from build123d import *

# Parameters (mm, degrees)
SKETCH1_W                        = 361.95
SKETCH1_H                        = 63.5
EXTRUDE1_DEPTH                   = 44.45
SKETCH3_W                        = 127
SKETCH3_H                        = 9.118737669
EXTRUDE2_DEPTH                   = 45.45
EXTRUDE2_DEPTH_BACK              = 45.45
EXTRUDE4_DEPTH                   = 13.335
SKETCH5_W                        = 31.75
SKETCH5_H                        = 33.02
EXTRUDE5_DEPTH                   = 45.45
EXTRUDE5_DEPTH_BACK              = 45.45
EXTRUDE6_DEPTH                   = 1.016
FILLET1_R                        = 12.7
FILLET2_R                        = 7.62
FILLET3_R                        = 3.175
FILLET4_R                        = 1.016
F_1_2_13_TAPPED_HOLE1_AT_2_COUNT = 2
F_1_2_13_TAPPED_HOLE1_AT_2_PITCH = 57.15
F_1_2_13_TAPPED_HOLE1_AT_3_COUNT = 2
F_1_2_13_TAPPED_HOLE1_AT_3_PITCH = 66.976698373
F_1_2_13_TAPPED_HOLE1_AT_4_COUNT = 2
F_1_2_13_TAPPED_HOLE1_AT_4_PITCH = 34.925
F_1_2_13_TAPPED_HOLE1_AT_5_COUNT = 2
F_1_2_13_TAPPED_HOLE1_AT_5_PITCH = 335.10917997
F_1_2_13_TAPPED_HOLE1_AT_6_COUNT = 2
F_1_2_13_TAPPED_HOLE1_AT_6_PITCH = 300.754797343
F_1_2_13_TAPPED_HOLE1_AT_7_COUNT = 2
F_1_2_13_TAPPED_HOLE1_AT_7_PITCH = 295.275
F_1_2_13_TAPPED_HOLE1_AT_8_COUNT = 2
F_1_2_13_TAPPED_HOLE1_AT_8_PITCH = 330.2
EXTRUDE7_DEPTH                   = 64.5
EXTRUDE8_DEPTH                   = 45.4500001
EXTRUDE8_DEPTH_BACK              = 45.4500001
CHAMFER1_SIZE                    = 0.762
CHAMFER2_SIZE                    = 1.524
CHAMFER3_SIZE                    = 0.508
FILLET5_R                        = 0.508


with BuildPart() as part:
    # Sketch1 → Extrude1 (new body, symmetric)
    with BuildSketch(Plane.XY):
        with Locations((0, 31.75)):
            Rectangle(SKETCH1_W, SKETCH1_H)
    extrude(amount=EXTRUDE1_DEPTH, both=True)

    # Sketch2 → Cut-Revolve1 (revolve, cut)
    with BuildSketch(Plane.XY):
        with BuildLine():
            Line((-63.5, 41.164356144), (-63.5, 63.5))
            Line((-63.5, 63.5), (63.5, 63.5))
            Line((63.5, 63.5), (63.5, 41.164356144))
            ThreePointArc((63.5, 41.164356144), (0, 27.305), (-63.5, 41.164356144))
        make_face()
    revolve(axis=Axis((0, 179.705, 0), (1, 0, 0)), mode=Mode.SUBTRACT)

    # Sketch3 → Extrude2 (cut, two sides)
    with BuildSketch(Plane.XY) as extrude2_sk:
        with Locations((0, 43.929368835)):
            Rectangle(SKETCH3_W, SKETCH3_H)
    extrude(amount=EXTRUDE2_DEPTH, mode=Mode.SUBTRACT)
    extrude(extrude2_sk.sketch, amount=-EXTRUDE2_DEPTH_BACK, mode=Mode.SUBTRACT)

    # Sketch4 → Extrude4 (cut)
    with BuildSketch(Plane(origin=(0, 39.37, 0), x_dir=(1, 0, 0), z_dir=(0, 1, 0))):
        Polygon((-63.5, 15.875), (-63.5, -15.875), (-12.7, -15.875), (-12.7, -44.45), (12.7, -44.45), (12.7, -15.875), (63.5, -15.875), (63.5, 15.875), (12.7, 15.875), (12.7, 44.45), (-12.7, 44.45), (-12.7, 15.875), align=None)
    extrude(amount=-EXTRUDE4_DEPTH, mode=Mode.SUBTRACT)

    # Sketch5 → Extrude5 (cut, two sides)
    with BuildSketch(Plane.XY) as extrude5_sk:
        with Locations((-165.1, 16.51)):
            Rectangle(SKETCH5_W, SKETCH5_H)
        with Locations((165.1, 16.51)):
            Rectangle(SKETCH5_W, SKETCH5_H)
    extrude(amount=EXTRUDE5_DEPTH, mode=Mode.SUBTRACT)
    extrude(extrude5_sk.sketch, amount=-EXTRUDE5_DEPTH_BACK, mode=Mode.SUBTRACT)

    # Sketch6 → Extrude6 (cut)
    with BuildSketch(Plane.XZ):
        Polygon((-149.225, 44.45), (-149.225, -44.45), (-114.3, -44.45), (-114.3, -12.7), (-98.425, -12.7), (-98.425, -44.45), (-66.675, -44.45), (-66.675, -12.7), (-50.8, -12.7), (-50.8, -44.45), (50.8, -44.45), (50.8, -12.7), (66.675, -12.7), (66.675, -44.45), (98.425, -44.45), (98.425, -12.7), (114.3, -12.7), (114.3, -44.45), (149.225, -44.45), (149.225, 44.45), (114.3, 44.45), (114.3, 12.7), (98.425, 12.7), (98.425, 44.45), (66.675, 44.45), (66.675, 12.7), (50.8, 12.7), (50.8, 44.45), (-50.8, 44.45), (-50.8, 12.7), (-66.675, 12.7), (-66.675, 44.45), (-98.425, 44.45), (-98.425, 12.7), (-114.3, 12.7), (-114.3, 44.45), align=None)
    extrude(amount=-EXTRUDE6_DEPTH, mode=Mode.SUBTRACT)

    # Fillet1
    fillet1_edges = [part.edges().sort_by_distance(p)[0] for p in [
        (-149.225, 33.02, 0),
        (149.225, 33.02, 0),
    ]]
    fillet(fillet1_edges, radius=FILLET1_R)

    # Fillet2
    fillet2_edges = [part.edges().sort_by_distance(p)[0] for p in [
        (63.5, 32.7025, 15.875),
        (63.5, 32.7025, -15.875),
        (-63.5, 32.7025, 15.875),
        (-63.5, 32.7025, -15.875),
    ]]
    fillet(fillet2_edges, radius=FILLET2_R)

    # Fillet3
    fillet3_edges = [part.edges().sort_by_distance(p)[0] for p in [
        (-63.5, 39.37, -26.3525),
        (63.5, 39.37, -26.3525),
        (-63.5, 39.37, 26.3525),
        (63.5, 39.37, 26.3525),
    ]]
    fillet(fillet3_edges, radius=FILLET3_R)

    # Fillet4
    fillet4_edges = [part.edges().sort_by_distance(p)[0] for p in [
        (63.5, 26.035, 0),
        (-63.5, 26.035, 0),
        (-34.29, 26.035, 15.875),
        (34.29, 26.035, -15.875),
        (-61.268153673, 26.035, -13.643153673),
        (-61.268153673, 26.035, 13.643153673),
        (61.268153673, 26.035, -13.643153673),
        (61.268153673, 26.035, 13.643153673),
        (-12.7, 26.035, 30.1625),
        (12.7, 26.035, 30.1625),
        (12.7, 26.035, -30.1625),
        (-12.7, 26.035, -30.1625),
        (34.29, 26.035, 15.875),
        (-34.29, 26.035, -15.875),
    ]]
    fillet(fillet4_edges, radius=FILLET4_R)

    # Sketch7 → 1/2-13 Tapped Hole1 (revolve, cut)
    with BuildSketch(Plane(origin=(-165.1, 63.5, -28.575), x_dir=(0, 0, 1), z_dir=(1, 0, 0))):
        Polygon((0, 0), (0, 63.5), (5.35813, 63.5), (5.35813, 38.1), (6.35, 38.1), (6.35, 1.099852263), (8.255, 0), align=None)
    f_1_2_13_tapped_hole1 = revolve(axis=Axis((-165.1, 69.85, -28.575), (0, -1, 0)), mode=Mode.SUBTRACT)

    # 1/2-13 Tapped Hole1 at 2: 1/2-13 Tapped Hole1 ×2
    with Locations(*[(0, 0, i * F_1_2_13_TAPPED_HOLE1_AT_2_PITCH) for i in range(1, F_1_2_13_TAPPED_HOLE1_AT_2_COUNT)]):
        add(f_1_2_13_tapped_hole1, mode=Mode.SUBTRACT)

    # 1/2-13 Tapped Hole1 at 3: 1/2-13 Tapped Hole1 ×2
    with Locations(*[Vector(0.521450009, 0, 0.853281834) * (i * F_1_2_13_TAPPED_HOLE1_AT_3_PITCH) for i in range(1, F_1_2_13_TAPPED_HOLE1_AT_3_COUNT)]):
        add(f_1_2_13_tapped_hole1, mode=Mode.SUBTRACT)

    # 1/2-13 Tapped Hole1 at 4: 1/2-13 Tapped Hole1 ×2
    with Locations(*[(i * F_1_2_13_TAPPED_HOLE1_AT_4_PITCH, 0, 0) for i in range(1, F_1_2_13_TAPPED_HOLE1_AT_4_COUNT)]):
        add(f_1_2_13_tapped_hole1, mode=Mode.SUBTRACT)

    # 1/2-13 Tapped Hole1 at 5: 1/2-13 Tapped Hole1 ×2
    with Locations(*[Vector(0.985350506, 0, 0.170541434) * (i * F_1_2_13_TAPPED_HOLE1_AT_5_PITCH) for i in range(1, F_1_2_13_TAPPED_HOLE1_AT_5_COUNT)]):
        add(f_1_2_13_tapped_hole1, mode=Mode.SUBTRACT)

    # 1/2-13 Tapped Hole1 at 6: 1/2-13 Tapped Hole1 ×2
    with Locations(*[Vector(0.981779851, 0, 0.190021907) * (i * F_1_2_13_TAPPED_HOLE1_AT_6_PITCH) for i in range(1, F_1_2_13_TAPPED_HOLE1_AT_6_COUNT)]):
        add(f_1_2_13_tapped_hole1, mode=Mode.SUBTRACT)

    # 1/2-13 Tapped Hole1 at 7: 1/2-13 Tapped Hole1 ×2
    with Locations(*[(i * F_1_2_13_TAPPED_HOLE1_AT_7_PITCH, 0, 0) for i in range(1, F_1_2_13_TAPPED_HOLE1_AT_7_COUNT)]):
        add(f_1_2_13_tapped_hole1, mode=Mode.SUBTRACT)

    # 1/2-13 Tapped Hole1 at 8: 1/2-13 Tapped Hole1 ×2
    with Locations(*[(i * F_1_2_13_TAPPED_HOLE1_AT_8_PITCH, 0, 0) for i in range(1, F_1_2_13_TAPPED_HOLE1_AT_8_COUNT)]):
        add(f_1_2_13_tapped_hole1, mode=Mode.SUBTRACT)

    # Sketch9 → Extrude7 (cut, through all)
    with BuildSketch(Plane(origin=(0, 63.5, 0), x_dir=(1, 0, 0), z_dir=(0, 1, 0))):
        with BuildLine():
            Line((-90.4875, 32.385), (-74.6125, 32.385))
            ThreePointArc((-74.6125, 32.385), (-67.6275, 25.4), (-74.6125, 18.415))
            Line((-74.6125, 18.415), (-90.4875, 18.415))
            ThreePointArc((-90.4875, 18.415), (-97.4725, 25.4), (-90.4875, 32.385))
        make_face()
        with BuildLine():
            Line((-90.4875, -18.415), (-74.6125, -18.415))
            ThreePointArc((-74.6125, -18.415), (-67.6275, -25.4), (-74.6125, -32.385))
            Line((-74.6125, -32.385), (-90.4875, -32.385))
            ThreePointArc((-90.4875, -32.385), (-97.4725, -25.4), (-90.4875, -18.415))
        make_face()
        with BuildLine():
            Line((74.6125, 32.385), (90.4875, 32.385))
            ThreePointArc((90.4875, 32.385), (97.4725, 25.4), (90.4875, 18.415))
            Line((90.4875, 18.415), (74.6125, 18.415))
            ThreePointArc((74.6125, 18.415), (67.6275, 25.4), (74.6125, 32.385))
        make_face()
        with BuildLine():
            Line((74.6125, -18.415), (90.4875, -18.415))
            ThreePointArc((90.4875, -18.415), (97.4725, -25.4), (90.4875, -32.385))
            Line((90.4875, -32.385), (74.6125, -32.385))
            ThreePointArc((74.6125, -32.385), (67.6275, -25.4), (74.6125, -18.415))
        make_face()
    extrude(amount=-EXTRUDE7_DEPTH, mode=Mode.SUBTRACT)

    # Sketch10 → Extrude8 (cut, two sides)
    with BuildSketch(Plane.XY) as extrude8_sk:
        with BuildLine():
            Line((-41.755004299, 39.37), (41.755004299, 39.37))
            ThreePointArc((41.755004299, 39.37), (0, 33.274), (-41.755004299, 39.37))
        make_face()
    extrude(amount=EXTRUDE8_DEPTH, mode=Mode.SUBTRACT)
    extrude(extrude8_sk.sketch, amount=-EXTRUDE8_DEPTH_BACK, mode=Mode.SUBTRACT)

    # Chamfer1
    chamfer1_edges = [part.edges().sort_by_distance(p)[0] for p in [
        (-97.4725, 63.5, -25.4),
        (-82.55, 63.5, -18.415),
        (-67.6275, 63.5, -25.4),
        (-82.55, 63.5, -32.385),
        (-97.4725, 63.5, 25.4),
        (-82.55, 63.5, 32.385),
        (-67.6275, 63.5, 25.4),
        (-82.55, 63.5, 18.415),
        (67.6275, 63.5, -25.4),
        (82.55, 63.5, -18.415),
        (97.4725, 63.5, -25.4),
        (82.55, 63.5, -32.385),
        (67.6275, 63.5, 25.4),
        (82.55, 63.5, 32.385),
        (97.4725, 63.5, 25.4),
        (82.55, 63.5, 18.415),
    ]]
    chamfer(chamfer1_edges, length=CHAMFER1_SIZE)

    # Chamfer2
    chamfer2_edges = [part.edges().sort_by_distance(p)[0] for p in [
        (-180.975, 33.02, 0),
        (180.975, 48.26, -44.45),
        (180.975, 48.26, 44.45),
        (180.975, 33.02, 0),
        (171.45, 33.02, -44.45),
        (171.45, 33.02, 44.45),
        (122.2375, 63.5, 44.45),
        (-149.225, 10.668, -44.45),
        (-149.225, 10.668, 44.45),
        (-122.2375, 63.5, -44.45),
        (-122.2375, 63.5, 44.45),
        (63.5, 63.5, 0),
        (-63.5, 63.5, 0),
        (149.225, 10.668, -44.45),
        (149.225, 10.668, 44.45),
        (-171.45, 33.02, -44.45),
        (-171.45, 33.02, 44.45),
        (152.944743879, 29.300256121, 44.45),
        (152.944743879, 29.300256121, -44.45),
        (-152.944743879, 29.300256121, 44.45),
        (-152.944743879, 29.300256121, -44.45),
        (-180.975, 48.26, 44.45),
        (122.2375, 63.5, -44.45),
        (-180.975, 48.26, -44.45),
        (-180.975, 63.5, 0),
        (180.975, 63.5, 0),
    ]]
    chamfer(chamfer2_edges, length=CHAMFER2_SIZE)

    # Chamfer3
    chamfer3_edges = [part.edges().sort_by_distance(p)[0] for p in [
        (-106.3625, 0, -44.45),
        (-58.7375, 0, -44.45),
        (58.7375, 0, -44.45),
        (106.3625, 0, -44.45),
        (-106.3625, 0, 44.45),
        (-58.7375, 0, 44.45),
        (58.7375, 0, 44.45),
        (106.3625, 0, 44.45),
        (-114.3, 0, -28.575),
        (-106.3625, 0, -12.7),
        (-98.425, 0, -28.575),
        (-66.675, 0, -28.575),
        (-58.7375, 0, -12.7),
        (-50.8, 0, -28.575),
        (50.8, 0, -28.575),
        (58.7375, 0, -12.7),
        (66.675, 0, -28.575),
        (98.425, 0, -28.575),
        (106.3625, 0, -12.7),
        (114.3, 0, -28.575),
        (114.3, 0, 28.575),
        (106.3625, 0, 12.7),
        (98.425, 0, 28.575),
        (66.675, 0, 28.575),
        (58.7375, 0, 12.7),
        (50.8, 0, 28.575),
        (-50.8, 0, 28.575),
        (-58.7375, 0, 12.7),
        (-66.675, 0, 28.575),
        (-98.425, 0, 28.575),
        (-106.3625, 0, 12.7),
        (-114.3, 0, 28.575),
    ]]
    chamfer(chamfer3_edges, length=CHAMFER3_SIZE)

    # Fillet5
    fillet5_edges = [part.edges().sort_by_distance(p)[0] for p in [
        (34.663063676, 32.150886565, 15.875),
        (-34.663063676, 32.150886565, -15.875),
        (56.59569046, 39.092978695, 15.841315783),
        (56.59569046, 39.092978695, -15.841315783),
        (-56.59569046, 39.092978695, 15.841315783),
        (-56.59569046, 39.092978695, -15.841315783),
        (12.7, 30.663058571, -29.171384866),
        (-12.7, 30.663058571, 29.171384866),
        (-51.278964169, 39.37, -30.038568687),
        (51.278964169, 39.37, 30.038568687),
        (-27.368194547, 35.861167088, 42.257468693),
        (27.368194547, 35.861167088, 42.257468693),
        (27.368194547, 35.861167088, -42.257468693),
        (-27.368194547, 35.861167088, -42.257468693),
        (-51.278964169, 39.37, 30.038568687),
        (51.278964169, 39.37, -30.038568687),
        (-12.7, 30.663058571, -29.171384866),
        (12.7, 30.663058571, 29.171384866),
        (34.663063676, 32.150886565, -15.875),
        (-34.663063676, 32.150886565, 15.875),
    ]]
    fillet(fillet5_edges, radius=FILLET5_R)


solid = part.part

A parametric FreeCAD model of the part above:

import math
import FreeCAD as App
import Part
import Sketcher
from FreeCAD import Vector
Q = App.Units.Quantity


def edges_at(feature, points):
    """Names of the edges that pass closest to the given points."""
    edges = feature.Shape.Edges
    near = lambda p: min(range(len(edges)), key=lambda i: edges[i].distToShape(Part.Vertex(*p))[0])
    return sorted({f"Edge{near(p) + 1}" for p in points})


def add_polygon(sketch, points):
    """Adds a closed chain of lines whose ends are joined by coincident constraints."""
    first, n = sketch.GeometryCount, len(points)
    for a, b in zip(points, points[1:] + points[:1]):
        sketch.addGeometry(Part.LineSegment(App.Vector(*a, 0), App.Vector(*b, 0)), False)
    for i in range(n):
        sketch.addConstraint(Sketcher.Constraint("Coincident", first + i, 2, first + (i + 1) % n, 1))

doc = App.newDocument("Part")
body = doc.addObject("PartDesign::Body", "Body")

# Sketch on XY plane
sketch1 = body.newObject("Sketcher::SketchObject", "Sketch")
sketch1.AttachmentSupport = (doc.getObject("XY_Plane"), [""])
sketch1.MapMode = "FlatFace"
add_polygon(sketch1, [(-181, 64), (-181, 0), (181, 0), (181, 64)])  # lines 0-3
sketch1.addConstraint([
    Sketcher.Constraint("Vertical", 0),
    Sketcher.Constraint("Horizontal", 1),
    Sketcher.Constraint("Vertical", 2),
    Sketcher.Constraint("Horizontal", 3),
    Sketcher.Constraint("Symmetric", 0, 2, 1, 2, -1, 1),
    Sketcher.Constraint("DistanceY", 0, 2, 0, 1, Q("2.5 in")),
    Sketcher.Constraint("DistanceX", 1, 1, 1, 2, Q("14.25 in")),
])
pad1 = body.newObject("PartDesign::Pad", "Pad")
pad1.Profile = sketch1
pad1.Length = Q("3.5 in")
pad1.Midplane = True

# Sketch on XY plane
sketch2 = body.newObject("Sketcher::SketchObject", "Sketch001")
sketch2.AttachmentSupport = (doc.getObject("XY_Plane"), [""])
sketch2.MapMode = "FlatFace"
sketch2.addGeometry([
    Part.LineSegment(Vector(-64, 64, 0), Vector(-64, 41, 0)),
    Part.ArcOfCircle(Part.Circle(Vector(0, 180, 0), Vector(0, 0, 1), 152), math.radians(-115), math.radians(-65)),
    Part.LineSegment(Vector(64, 41, 0), Vector(64, 64, 0)),
    Part.LineSegment(Vector(64, 64, 0), Vector(-64, 64, 0)),
], False)
sketch2.addGeometry(Part.LineSegment(Vector(-64, 180, 0), Vector(64, 180, 0)), True)  # axis
sketch2.addConstraint([
    Sketcher.Constraint("Coincident", 0, 2, 1, 1),
    Sketcher.Constraint("Coincident", 1, 2, 2, 1),
    Sketcher.Constraint("Coincident", 2, 2, 3, 1),
    Sketcher.Constraint("Coincident", 3, 2, 0, 1),
    Sketcher.Constraint("Vertical", 0),
    Sketcher.Constraint("Vertical", 2),
    Sketcher.Constraint("Horizontal", 3),
    Sketcher.Constraint("Horizontal", 4),
    Sketcher.Constraint("Symmetric", 0, 2, 1, 2, -2),
    Sketcher.Constraint("Horizontal", 1, 3, 4, 1),
    Sketcher.Constraint("Vertical", 3, 2, 4, 1),
    Sketcher.Constraint("Vertical", 2, 2, 4, 2),
    Sketcher.Constraint("Radius", 1, Q("6 in")),
    Sketcher.Constraint("DistanceX", 3, 2, 3, 1, Q("5 in")),
    Sketcher.Constraint("DistanceY", -1, 1, 2, 2, Q("2.5 in")),
    Sketcher.Constraint("DistanceY", -1, 1, 1, 3, Q("7.075 in")),
])
groove = body.newObject("PartDesign::Groove", "Groove")
groove.Profile = sketch2
groove.ReferenceAxis = (sketch2, ["Axis0"])
groove.Angle = 360

# Sketch on XY plane
sketch3 = body.newObject("Sketcher::SketchObject", "Sketch002")
sketch3.AttachmentSupport = (doc.getObject("XY_Plane"), [""])
sketch3.MapMode = "FlatFace"
add_polygon(sketch3, [(-64, 48), (-64, 39), (64, 39), (64, 48)])  # lines 0-3
sketch3.addConstraint([
    Sketcher.Constraint("Vertical", 0),
    Sketcher.Constraint("Horizontal", 1),
    Sketcher.Constraint("Vertical", 2),
    Sketcher.Constraint("Horizontal", 3),
    Sketcher.Constraint("DistanceX", 1, 1, 1, 2, Q("5 in")),
    Sketcher.Constraint("DistanceX", 0, 2, -1, 1, Q("2.5 in")),
    Sketcher.Constraint("DistanceY", -1, 1, 0, 2, Q("1.55 in")),
    Sketcher.Constraint("DistanceY", 0, 2, 0, 1, Q("9.118738 mm")),
])
pocket1 = body.newObject("PartDesign::Pocket", "Pocket")
pocket1.Profile = sketch3
pocket1.Type = "ThroughAll"
pocket1.Midplane = True

# Sketch on XZ plane
sketch4 = body.newObject("Sketcher::SketchObject", "Sketch003")
sketch4.AttachmentSupport = (doc.getObject("XZ_Plane"), [""])
sketch4.MapMode = "FlatFace"
sketch4.AttachmentOffset = App.Placement(Vector(0, 0, -1.55 * 25.4), App.Rotation())
add_polygon(sketch4, [(-64, -16), (-64, 16), (-13, 16), (-13, 44), (13, 44), (13, 16), (64, 16), (64, -16), (13, -16), (13, -44), (-13, -44), (-13, -16)])  # lines 0-11
sketch4.addConstraint([
    Sketcher.Constraint("Vertical", 0),
    Sketcher.Constraint("Horizontal", 1),
    Sketcher.Constraint("Vertical", 2),
    Sketcher.Constraint("Horizontal", 3),
    Sketcher.Constraint("Vertical", 4),
    Sketcher.Constraint("Horizontal", 5),
    Sketcher.Constraint("Vertical", 6),
    Sketcher.Constraint("Horizontal", 7),
    Sketcher.Constraint("Vertical", 8),
    Sketcher.Constraint("Horizontal", 9),
    Sketcher.Constraint("Vertical", 10),
    Sketcher.Constraint("Horizontal", 11),
    Sketcher.Constraint("Symmetric", 0, 2, 6, 2, -1, 1),
    Sketcher.Constraint("Symmetric", 2, 2, 8, 2, -1, 1),
    Sketcher.Constraint("Symmetric", 4, 2, 10, 2, -1, 1),
    Sketcher.Constraint("Symmetric", 1, 2, 4, 2, -2),
    Sketcher.Constraint("DistanceX", 1, 1, 1, 2, Q("2 in")),
    Sketcher.Constraint("DistanceX", 3, 1, 3, 2, Q("1 in")),
    Sketcher.Constraint("DistanceY", 0, 1, 0, 2, Q("1.25 in")),
    Sketcher.Constraint("DistanceY", 2, 1, 2, 2, Q("1.125 in")),
])
pocket2 = body.newObject("PartDesign::Pocket", "Pocket001")
pocket2.Profile = sketch4
pocket2.Length = Q("0.525 in")
pocket2.Reversed = True

# Sketch on XY plane
sketch5 = body.newObject("Sketcher::SketchObject", "Sketch004")
sketch5.AttachmentSupport = (doc.getObject("XY_Plane"), [""])
sketch5.MapMode = "FlatFace"
add_polygon(sketch5, [(-181, 33), (-181, 0), (-149, 0), (-149, 33)])  # lines 0-3
add_polygon(sketch5, [(149, 33), (149, 0), (181, 0), (181, 33)])  # lines 4-7
sketch5.addConstraint([
    Sketcher.Constraint("Vertical", 0),
    Sketcher.Constraint("Horizontal", 1),
    Sketcher.Constraint("Vertical", 2),
    Sketcher.Constraint("Horizontal", 3),
    Sketcher.Constraint("Vertical", 4),
    Sketcher.Constraint("Horizontal", 5),
    Sketcher.Constraint("Vertical", 6),
    Sketcher.Constraint("Horizontal", 7),
    Sketcher.Constraint("Symmetric", 1, 2, 4, 2, -1, 1),
    Sketcher.Constraint("Symmetric", 0, 2, 5, 2, -2),
    Sketcher.Constraint("Horizontal", 3, 2, 6, 2),
    Sketcher.Constraint("DistanceY", 0, 2, 0, 1, Q("1.3 in")),
    Sketcher.Constraint("DistanceX", 0, 2, 4, 2, Q("13 in")),
    Sketcher.Constraint("DistanceX", 1, 1, 1, 2, Q("1.25 in")),
])
pocket3 = body.newObject("PartDesign::Pocket", "Pocket002")
pocket3.Profile = sketch5
pocket3.Type = "ThroughAll"
pocket3.Midplane = True

# Sketch on XZ plane
sketch6 = body.newObject("Sketcher::SketchObject", "Sketch005")
sketch6.AttachmentSupport = (doc.getObject("XZ_Plane"), [""])
sketch6.MapMode = "FlatFace"
add_polygon(sketch6, [(-149, 44), (-149, -44), (-114, -44), (-114, -13), (-98, -13), (-98, -44), (-67, -44), (-67, -13), (-51, -13), (-51, -44), (51, -44), (51, -13), (67, -13), (67, -44), (98, -44), (98, -13), (114, -13), (114, -44), (149, -44), (149, 44), (114, 44), (114, 13), (98, 13), (98, 44), (67, 44), (67, 13), (51, 13), (51, 44), (-51, 44), (-51, 13), (-67, 13), (-67, 44), (-98, 44), (-98, 13), (-114, 13), (-114, 44)])  # lines 0-35
sketch6.addConstraint([
    Sketcher.Constraint("Vertical", 0),
    Sketcher.Constraint("Horizontal", 1),
    Sketcher.Constraint("Vertical", 2),
    Sketcher.Constraint("Horizontal", 3),
    Sketcher.Constraint("Vertical", 4),
    Sketcher.Constraint("Horizontal", 5),
    Sketcher.Constraint("Vertical", 6),
    Sketcher.Constraint("Horizontal", 7),
    Sketcher.Constraint("Vertical", 8),
    Sketcher.Constraint("Horizontal", 9),
    Sketcher.Constraint("Vertical", 10),
    Sketcher.Constraint("Horizontal", 11),
    Sketcher.Constraint("Vertical", 12),
    Sketcher.Constraint("Horizontal", 13),
    Sketcher.Constraint("Vertical", 14),
    Sketcher.Constraint("Horizontal", 15),
    Sketcher.Constraint("Vertical", 16),
    Sketcher.Constraint("Horizontal", 17),
    Sketcher.Constraint("Vertical", 18),
    Sketcher.Constraint("Horizontal", 19),
    Sketcher.Constraint("Vertical", 20),
    Sketcher.Constraint("Horizontal", 21),
    Sketcher.Constraint("Vertical", 22),
    Sketcher.Constraint("Horizontal", 23),
    Sketcher.Constraint("Vertical", 24),
    Sketcher.Constraint("Horizontal", 25),
    Sketcher.Constraint("Vertical", 26),
    Sketcher.Constraint("Horizontal", 27),
    Sketcher.Constraint("Vertical", 28),
    Sketcher.Constraint("Horizontal", 29),
    Sketcher.Constraint("Vertical", 30),
    Sketcher.Constraint("Horizontal", 31),
    Sketcher.Constraint("Vertical", 32),
    Sketcher.Constraint("Horizontal", 33),
    Sketcher.Constraint("Vertical", 34),
    Sketcher.Constraint("Horizontal", 35),
    Sketcher.Constraint("Symmetric", 0, 2, 18, 2, -1, 1),
    Sketcher.Constraint("Symmetric", 2, 2, 20, 2, -1, 1),
    Sketcher.Constraint("Symmetric", 4, 2, 22, 2, -1, 1),
    Sketcher.Constraint("Symmetric", 6, 2, 24, 2, -1, 1),
    Sketcher.Constraint("Symmetric", 8, 2, 26, 2, -1, 1),
    Sketcher.Constraint("Symmetric", 10, 2, 28, 2, -1, 1),
    Sketcher.Constraint("Symmetric", 12, 2, 30, 2, -1, 1),
    Sketcher.Constraint("Symmetric", 14, 2, 32, 2, -1, 1),
    Sketcher.Constraint("Symmetric", 16, 2, 34, 2, -1, 1),
    Sketcher.Constraint("Symmetric", 7, 2, 10, 2, -2),
    Sketcher.Constraint("Symmetric", 5, 2, 12, 2, -2),
    Sketcher.Constraint("Symmetric", 3, 2, 14, 2, -2),
    Sketcher.Constraint("Symmetric", 1, 2, 16, 2, -2),
    Sketcher.Constraint("Horizontal", 1, 2, 4, 2),
    Sketcher.Constraint("Horizontal", 3, 2, 6, 2),
    Sketcher.Constraint("Horizontal", 5, 2, 8, 2),
    Sketcher.Constraint("Equal", 3, 7),
    Sketcher.Constraint("Equal", 31, 2),
    Sketcher.Constraint("DistanceX", 9, 1, 9, 2, Q("4 in")),
    Sketcher.Constraint("DistanceY", 0, 2, 0, 1, Q("3.5 in")),
    Sketcher.Constraint("DistanceX", 0, 2, 3, 2, Q("2 in")),
    Sketcher.Constraint("DistanceY", 15, 2, 20, 2, Q("1 in")),
    Sketcher.Constraint("DistanceX", 1, 2, -1, 1, Q("4.5 in")),
])
pocket4 = body.newObject("PartDesign::Pocket", "Pocket003")
pocket4.Profile = sketch6
pocket4.Length = Q("0.04 in")
doc.recompute()

fillet = body.newObject("PartDesign::Fillet", "Fillet")
fillet.Base = (pocket4, edges_at(pocket4, [(-149.225, 33.02, 0), (149.225, 33.02, 0)]))
fillet.Radius = Q("0.5 in")
doc.recompute()

fillet2 = body.newObject("PartDesign::Fillet", "Fillet001")
fillet2.Base = (fillet, edges_at(fillet, [
    (63.5, 32.703, 15.875),
    (63.5, 32.703, -15.875),
    (-63.5, 32.703, 15.875),
    (-63.5, 32.703, -15.875),
]))
fillet2.Radius = Q("0.3 in")
doc.recompute()

fillet3 = body.newObject("PartDesign::Fillet", "Fillet002")
fillet3.Base = (fillet2, edges_at(fillet2, [
    (-63.5, 39.37, -26.352),
    (63.5, 39.37, -26.352),
    (-63.5, 39.37, 26.352),
    (63.5, 39.37, 26.352),
]))
fillet3.Radius = Q("0.125 in")
doc.recompute()

fillet4 = body.newObject("PartDesign::Fillet", "Fillet003")
fillet4.Base = (fillet3, edges_at(fillet3, [
    (63.5, 26.035, 0),
    (-63.5, 26.035, 0),
    (-34.29, 26.035, 15.875),
    (34.29, 26.035, -15.875),
    (-61.268, 26.035, -13.643),
    (-61.268, 26.035, 13.643),
    (61.268, 26.035, -13.643),
    (61.268, 26.035, 13.643),
    (-12.7, 26.035, 30.163),
    (12.7, 26.035, 30.163),
    (12.7, 26.035, -30.163),
    (-12.7, 26.035, -30.163),
    (34.29, 26.035, 15.875),
    (-34.29, 26.035, -15.875),
]))
fillet4.Radius = Q("0.04 in")

# Sketch on YZ plane
sketch7 = body.newObject("Sketcher::SketchObject", "Sketch006")
sketch7.AttachmentSupport = (doc.getObject("YZ_Plane"), [""])
sketch7.MapMode = "FlatFace"
sketch7.AttachmentOffset = App.Placement(Vector(0, 0, -6.5 * 25.4), App.Rotation())
add_polygon(sketch7, [(0, -28.6), (63.5, -28.6), (63.5, -20.3), (62.4, -22.2), (25.4, -22.2), (25.4, -23.2), (0, -23.2)])  # lines 0-6
sketch7.addGeometry(Part.LineSegment(Vector(63.5, -28.6, 0), Vector(0, -28.6, 0)), True)  # axis
sketch7.addConstraint([
    Sketcher.Constraint("Horizontal", 0),
    Sketcher.Constraint("Vertical", 1),
    Sketcher.Constraint("Horizontal", 3),
    Sketcher.Constraint("Vertical", 4),
    Sketcher.Constraint("Horizontal", 5),
    Sketcher.Constraint("Vertical", 6),
    Sketcher.Constraint("Horizontal", 7),
    Sketcher.Constraint("Coincident", 7, 1, 0, 2),
    Sketcher.Constraint("PointOnObject", 5, 2, -2),
    Sketcher.Constraint("PointOnObject", 7, 2, -2),
    Sketcher.Constraint("DistanceX", 5, 2, 5, 1, Q("1 in")),
    Sketcher.Constraint("DistanceX", 0, 1, 0, 2, Q("2.5 in")),
    Sketcher.Constraint("Angle", 2, Q("-120 deg")),
    Sketcher.Constraint("DistanceY", 1, 2, -1, 1, Q("0.8 in")),
    Sketcher.Constraint("DistanceY", 1, 1, 1, 2, Q("0.325 in")),
    Sketcher.Constraint("DistanceY", 0, 2, 2, 2, Q("0.25 in")),
    Sketcher.Constraint("DistanceY", 4, 2, 4, 1, Q("0.99187 mm")),
])
groove2 = body.newObject("PartDesign::Groove", "Groove001")
groove2.Profile = sketch7
groove2.ReferenceAxis = (sketch7, ["Axis0"])
groove2.Angle = 360
doc.recompute()

linearpattern = body.newObject("PartDesign::LinearPattern", "LinearPattern")
linearpattern.Originals = [groove2]
linearpattern.Direction = (doc.getObject("Z_Axis"), [""])
linearpattern.Mode = "offset"
linearpattern.Offset = Q("2.25 in")
linearpattern.Occurrences = 2
body.Tip = linearpattern
doc.recompute()

datumline = body.newObject("PartDesign::Line", "DatumLine")
datumline.Placement = App.Placement(Vector(0, 0, 0), App.Rotation(Vector(0, 0, 1), Vector(0.521450009, 0, 0.853281834)))
linearpattern2 = body.newObject("PartDesign::LinearPattern", "LinearPattern001")
linearpattern2.Originals = [groove2]
linearpattern2.Direction = (datumline, [""])
linearpattern2.Mode = "offset"
linearpattern2.Offset = 66.976698
linearpattern2.Occurrences = 2
body.Tip = linearpattern2
doc.recompute()

linearpattern3 = body.newObject("PartDesign::LinearPattern", "LinearPattern002")
linearpattern3.Originals = [groove2]
linearpattern3.Direction = (doc.getObject("X_Axis"), [""])
linearpattern3.Mode = "offset"
linearpattern3.Offset = Q("1.375 in")
linearpattern3.Occurrences = 2
body.Tip = linearpattern3
doc.recompute()

datumline2 = body.newObject("PartDesign::Line", "DatumLine001")
datumline2.Placement = App.Placement(Vector(0, 0, 0), App.Rotation(Vector(0, 0, 1), Vector(0.985350506, 0, 0.170541434)))
linearpattern4 = body.newObject("PartDesign::LinearPattern", "LinearPattern003")
linearpattern4.Originals = [groove2]
linearpattern4.Direction = (datumline2, [""])
linearpattern4.Mode = "offset"
linearpattern4.Offset = 335.10918
linearpattern4.Occurrences = 2
body.Tip = linearpattern4
doc.recompute()

datumline3 = body.newObject("PartDesign::Line", "DatumLine002")
datumline3.Placement = App.Placement(Vector(0, 0, 0), App.Rotation(Vector(0, 0, 1), Vector(0.981779851, 0, 0.190021907)))
linearpattern5 = body.newObject("PartDesign::LinearPattern", "LinearPattern004")
linearpattern5.Originals = [groove2]
linearpattern5.Direction = (datumline3, [""])
linearpattern5.Mode = "offset"
linearpattern5.Offset = 300.754797
linearpattern5.Occurrences = 2
body.Tip = linearpattern5
doc.recompute()

linearpattern6 = body.newObject("PartDesign::LinearPattern", "LinearPattern005")
linearpattern6.Originals = [groove2]
linearpattern6.Direction = (doc.getObject("X_Axis"), [""])
linearpattern6.Mode = "offset"
linearpattern6.Offset = Q("11.625 in")
linearpattern6.Occurrences = 2
body.Tip = linearpattern6
doc.recompute()

linearpattern7 = body.newObject("PartDesign::LinearPattern", "LinearPattern006")
linearpattern7.Originals = [groove2]
linearpattern7.Direction = (doc.getObject("X_Axis"), [""])
linearpattern7.Mode = "offset"
linearpattern7.Offset = Q("13 in")
linearpattern7.Occurrences = 2
body.Tip = linearpattern7

# Sketch on XZ plane
sketch8 = body.newObject("Sketcher::SketchObject", "Sketch007")
sketch8.AttachmentSupport = (doc.getObject("XZ_Plane"), [""])
sketch8.MapMode = "FlatFace"
sketch8.AttachmentOffset = App.Placement(Vector(0, 0, -2.5 * 25.4), App.Rotation())
sketch8.addGeometry([
    Part.LineSegment(Vector(-75, -32, 0), Vector(-90, -32, 0)),  # 0
    Part.ArcOfCircle(Part.Circle(Vector(-90, -25, 0), Vector(0, 0, 1), 7), math.radians(90), math.radians(270)),  # 1
    Part.LineSegment(Vector(-90, -18, 0), Vector(-75, -18, 0)),  # 2
    Part.ArcOfCircle(Part.Circle(Vector(-75, -25, 0), Vector(0, 0, 1), 7), math.radians(-90), math.radians(90)),  # 3
    Part.LineSegment(Vector(-75, 18, 0), Vector(-90, 18, 0)),  # 4
    Part.ArcOfCircle(Part.Circle(Vector(-90, 25, 0), Vector(0, 0, 1), 7), math.radians(90), math.radians(270)),  # 5
    Part.LineSegment(Vector(-90, 32, 0), Vector(-75, 32, 0)),  # 6
    Part.ArcOfCircle(Part.Circle(Vector(-75, 25, 0), Vector(0, 0, 1), 7), math.radians(-90), math.radians(90)),  # 7
    Part.LineSegment(Vector(90, -32, 0), Vector(75, -32, 0)),  # 8
    Part.ArcOfCircle(Part.Circle(Vector(75, -25, 0), Vector(0, 0, 1), 7), math.radians(90), math.radians(270)),  # 9
    Part.LineSegment(Vector(75, -18, 0), Vector(90, -18, 0)),  # 10
    Part.ArcOfCircle(Part.Circle(Vector(90, -25, 0), Vector(0, 0, 1), 7), math.radians(-90), math.radians(90)),  # 11
    Part.LineSegment(Vector(90, 18, 0), Vector(75, 18, 0)),  # 12
    Part.ArcOfCircle(Part.Circle(Vector(75, 25, 0), Vector(0, 0, 1), 7), math.radians(90), math.radians(270)),  # 13
    Part.LineSegment(Vector(75, 32, 0), Vector(90, 32, 0)),  # 14
    Part.ArcOfCircle(Part.Circle(Vector(90, 25, 0), Vector(0, 0, 1), 7), math.radians(-90), math.radians(90)),  # 15
], False)
sketch8.addConstraint([
    Sketcher.Constraint("Tangent", 0, 2, 1, 2),
    Sketcher.Constraint("Tangent", 1, 1, 2, 1),
    Sketcher.Constraint("Tangent", 2, 2, 3, 2),
    Sketcher.Constraint("Tangent", 3, 1, 0, 1),
    Sketcher.Constraint("Tangent", 4, 2, 5, 2),
    Sketcher.Constraint("Tangent", 5, 1, 6, 1),
    Sketcher.Constraint("Tangent", 6, 2, 7, 2),
    Sketcher.Constraint("Tangent", 7, 1, 4, 1),
    Sketcher.Constraint("Tangent", 8, 2, 9, 2),
    Sketcher.Constraint("Tangent", 9, 1, 10, 1),
    Sketcher.Constraint("Tangent", 10, 2, 11, 2),
    Sketcher.Constraint("Tangent", 11, 1, 8, 1),
    Sketcher.Constraint("Tangent", 12, 2, 13, 2),
    Sketcher.Constraint("Tangent", 13, 1, 14, 1),
    Sketcher.Constraint("Tangent", 14, 2, 15, 2),
    Sketcher.Constraint("Tangent", 15, 1, 12, 1),
    Sketcher.Constraint("Horizontal", 0),
    Sketcher.Constraint("Horizontal", 2),
    Sketcher.Constraint("Horizontal", 4),
    Sketcher.Constraint("Horizontal", 6),
    Sketcher.Constraint("Horizontal", 8),
    Sketcher.Constraint("Horizontal", 10),
    Sketcher.Constraint("Horizontal", 12),
    Sketcher.Constraint("Horizontal", 14),
    Sketcher.Constraint("Equal", 3, 5),
    Sketcher.Constraint("Equal", 7, 9),
    Sketcher.Constraint("Equal", 11, 13),
    Sketcher.Constraint("Symmetric", 7, 3, 9, 3, -1, 1),
    Sketcher.Constraint("Symmetric", 3, 3, 13, 3, -1, 1),
    Sketcher.Constraint("Symmetric", 3, 3, 9, 3, -2),
    Sketcher.Constraint("Vertical", 1, 3, 5, 3),
    Sketcher.Constraint("Vertical", 11, 3, 15, 3),
    Sketcher.Constraint("Equal", 6, 8),
    Sketcher.Constraint("DistanceY", 1, 3, -1, 1, Q("1 in")),
    Sketcher.Constraint("Radius", 1, Q("0.275 in")),
    Sketcher.Constraint("DistanceX", 1, 3, 9, 3, Q("6.5 in")),
    Sketcher.Constraint("DistanceX", 0, 2, 0, 1, Q("0.625 in")),
])
pocket5 = body.newObject("PartDesign::Pocket", "Pocket004")
pocket5.Profile = sketch8
pocket5.Type = "ThroughAll"
pocket5.Reversed = True

# Sketch on XY plane
sketch9 = body.newObject("Sketcher::SketchObject", "Sketch008")
sketch9.AttachmentSupport = (doc.getObject("XY_Plane"), [""])
sketch9.MapMode = "FlatFace"
sketch9.addGeometry([
    Part.LineSegment(Vector(42, 39, 0), Vector(-42, 39, 0)),
    Part.ArcOfCircle(Part.Circle(Vector(0, 179, 0), Vector(0, 0, 1), 146), math.radians(-107), math.radians(-73)),
], False)
sketch9.addConstraint([
    Sketcher.Constraint("Coincident", 0, 1, 1, 2),
    Sketcher.Constraint("Coincident", 1, 1, 0, 2),
    Sketcher.Constraint("Horizontal", 0),
    Sketcher.Constraint("PointOnObject", 1, 3, -2),
    Sketcher.Constraint("Radius", 1, Q("5.75 in")),
    Sketcher.Constraint("DistanceY", -1, 1, 1, 3, Q("7.06 in")),
    Sketcher.Constraint("DistanceY", -1, 1, 0, 1, Q("1.55 in")),
])
pocket6 = body.newObject("PartDesign::Pocket", "Pocket005")
pocket6.Profile = sketch9
pocket6.Type = "ThroughAll"
pocket6.Midplane = True
doc.recompute()

chamfer = body.newObject("PartDesign::Chamfer", "Chamfer")
chamfer.Base = (pocket6, edges_at(pocket6, [
    (-97.472, 63.5, -25.4),
    (-82.55, 63.5, -18.415),
    (-67.627, 63.5, -25.4),
    (-82.55, 63.5, -32.385),
    (-97.472, 63.5, 25.4),
    (-82.55, 63.5, 32.385),
    (-67.627, 63.5, 25.4),
    (-82.55, 63.5, 18.415),
    (67.627, 63.5, -25.4),
    (82.55, 63.5, -18.415),
    (97.472, 63.5, -25.4),
    (82.55, 63.5, -32.385),
    (67.627, 63.5, 25.4),
    (82.55, 63.5, 32.385),
    (97.472, 63.5, 25.4),
    (82.55, 63.5, 18.415),
]))
chamfer.Size = Q("0.03 in")
doc.recompute()

chamfer2 = body.newObject("PartDesign::Chamfer", "Chamfer001")
chamfer2.Base = (chamfer, edges_at(chamfer, [
    (-180.975, 33.02, 0),
    (180.975, 48.26, -44.45),
    (180.975, 48.26, 44.45),
    (180.975, 33.02, 0),
    (171.45, 33.02, -44.45),
    (171.45, 33.02, 44.45),
    (122.237, 63.5, 44.45),
    (-149.225, 10.668, -44.45),
    (-149.225, 10.668, 44.45),
    (-122.237, 63.5, -44.45),
    (-122.237, 63.5, 44.45),
    (63.5, 63.5, 0),
    (-63.5, 63.5, 0),
    (149.225, 10.668, -44.45),
    (149.225, 10.668, 44.45),
    (-171.45, 33.02, -44.45),
    (-171.45, 33.02, 44.45),
    (152.945, 29.3, 44.45),
    (152.945, 29.3, -44.45),
    (-152.945, 29.3, 44.45),
    (-152.945, 29.3, -44.45),
    (-180.975, 48.26, 44.45),
    (122.237, 63.5, -44.45),
    (-180.975, 48.26, -44.45),
    (-180.975, 63.5, 0),
    (180.975, 63.5, 0),
]))
chamfer2.Size = Q("0.06 in")
doc.recompute()

chamfer3 = body.newObject("PartDesign::Chamfer", "Chamfer002")
chamfer3.Base = (chamfer2, edges_at(chamfer2, [
    (-106.362, 0, -44.45),
    (-58.737, 0, -44.45),
    (58.737, 0, -44.45),
    (106.362, 0, -44.45),
    (-106.362, 0, 44.45),
    (-58.737, 0, 44.45),
    (58.737, 0, 44.45),
    (106.362, 0, 44.45),
    (-114.3, 0, -28.575),
    (-106.362, 0, -12.7),
    (-98.425, 0, -28.575),
    (-66.675, 0, -28.575),
    (-58.737, 0, -12.7),
    (-50.8, 0, -28.575),
    (50.8, 0, -28.575),
    (58.737, 0, -12.7),
    (66.675, 0, -28.575),
    (98.425, 0, -28.575),
    (106.362, 0, -12.7),
    (114.3, 0, -28.575),
    (114.3, 0, 28.575),
    (106.362, 0, 12.7),
    (98.425, 0, 28.575),
    (66.675, 0, 28.575),
    (58.737, 0, 12.7),
    (50.8, 0, 28.575),
    (-50.8, 0, 28.575),
    (-58.737, 0, 12.7),
    (-66.675, 0, 28.575),
    (-98.425, 0, 28.575),
    (-106.362, 0, 12.7),
    (-114.3, 0, 28.575),
]))
chamfer3.Size = Q("0.02 in")
doc.recompute()

fillet5 = body.newObject("PartDesign::Fillet", "Fillet004")
fillet5.Base = (chamfer3, edges_at(chamfer3, [
    (34.663, 32.151, 15.875),
    (-34.663, 32.151, -15.875),
    (56.596, 39.093, 15.841),
    (56.596, 39.093, -15.841),
    (-56.596, 39.093, 15.841),
    (-56.596, 39.093, -15.841),
    (12.7, 30.663, -29.171),
    (-12.7, 30.663, 29.171),
    (-51.279, 39.37, -30.039),
    (51.279, 39.37, 30.039),
    (-27.368, 35.861, 42.257),
    (27.368, 35.861, 42.257),
    (27.368, 35.861, -42.257),
    (-27.368, 35.861, -42.257),
    (-51.279, 39.37, 30.039),
    (51.279, 39.37, -30.039),
    (-12.7, 30.663, -29.171),
    (12.7, 30.663, 29.171),
    (34.663, 32.151, -15.875),
    (-34.663, 32.151, 15.875),
]))
fillet5.Radius = Q("0.02 in")

doc.recompute()
